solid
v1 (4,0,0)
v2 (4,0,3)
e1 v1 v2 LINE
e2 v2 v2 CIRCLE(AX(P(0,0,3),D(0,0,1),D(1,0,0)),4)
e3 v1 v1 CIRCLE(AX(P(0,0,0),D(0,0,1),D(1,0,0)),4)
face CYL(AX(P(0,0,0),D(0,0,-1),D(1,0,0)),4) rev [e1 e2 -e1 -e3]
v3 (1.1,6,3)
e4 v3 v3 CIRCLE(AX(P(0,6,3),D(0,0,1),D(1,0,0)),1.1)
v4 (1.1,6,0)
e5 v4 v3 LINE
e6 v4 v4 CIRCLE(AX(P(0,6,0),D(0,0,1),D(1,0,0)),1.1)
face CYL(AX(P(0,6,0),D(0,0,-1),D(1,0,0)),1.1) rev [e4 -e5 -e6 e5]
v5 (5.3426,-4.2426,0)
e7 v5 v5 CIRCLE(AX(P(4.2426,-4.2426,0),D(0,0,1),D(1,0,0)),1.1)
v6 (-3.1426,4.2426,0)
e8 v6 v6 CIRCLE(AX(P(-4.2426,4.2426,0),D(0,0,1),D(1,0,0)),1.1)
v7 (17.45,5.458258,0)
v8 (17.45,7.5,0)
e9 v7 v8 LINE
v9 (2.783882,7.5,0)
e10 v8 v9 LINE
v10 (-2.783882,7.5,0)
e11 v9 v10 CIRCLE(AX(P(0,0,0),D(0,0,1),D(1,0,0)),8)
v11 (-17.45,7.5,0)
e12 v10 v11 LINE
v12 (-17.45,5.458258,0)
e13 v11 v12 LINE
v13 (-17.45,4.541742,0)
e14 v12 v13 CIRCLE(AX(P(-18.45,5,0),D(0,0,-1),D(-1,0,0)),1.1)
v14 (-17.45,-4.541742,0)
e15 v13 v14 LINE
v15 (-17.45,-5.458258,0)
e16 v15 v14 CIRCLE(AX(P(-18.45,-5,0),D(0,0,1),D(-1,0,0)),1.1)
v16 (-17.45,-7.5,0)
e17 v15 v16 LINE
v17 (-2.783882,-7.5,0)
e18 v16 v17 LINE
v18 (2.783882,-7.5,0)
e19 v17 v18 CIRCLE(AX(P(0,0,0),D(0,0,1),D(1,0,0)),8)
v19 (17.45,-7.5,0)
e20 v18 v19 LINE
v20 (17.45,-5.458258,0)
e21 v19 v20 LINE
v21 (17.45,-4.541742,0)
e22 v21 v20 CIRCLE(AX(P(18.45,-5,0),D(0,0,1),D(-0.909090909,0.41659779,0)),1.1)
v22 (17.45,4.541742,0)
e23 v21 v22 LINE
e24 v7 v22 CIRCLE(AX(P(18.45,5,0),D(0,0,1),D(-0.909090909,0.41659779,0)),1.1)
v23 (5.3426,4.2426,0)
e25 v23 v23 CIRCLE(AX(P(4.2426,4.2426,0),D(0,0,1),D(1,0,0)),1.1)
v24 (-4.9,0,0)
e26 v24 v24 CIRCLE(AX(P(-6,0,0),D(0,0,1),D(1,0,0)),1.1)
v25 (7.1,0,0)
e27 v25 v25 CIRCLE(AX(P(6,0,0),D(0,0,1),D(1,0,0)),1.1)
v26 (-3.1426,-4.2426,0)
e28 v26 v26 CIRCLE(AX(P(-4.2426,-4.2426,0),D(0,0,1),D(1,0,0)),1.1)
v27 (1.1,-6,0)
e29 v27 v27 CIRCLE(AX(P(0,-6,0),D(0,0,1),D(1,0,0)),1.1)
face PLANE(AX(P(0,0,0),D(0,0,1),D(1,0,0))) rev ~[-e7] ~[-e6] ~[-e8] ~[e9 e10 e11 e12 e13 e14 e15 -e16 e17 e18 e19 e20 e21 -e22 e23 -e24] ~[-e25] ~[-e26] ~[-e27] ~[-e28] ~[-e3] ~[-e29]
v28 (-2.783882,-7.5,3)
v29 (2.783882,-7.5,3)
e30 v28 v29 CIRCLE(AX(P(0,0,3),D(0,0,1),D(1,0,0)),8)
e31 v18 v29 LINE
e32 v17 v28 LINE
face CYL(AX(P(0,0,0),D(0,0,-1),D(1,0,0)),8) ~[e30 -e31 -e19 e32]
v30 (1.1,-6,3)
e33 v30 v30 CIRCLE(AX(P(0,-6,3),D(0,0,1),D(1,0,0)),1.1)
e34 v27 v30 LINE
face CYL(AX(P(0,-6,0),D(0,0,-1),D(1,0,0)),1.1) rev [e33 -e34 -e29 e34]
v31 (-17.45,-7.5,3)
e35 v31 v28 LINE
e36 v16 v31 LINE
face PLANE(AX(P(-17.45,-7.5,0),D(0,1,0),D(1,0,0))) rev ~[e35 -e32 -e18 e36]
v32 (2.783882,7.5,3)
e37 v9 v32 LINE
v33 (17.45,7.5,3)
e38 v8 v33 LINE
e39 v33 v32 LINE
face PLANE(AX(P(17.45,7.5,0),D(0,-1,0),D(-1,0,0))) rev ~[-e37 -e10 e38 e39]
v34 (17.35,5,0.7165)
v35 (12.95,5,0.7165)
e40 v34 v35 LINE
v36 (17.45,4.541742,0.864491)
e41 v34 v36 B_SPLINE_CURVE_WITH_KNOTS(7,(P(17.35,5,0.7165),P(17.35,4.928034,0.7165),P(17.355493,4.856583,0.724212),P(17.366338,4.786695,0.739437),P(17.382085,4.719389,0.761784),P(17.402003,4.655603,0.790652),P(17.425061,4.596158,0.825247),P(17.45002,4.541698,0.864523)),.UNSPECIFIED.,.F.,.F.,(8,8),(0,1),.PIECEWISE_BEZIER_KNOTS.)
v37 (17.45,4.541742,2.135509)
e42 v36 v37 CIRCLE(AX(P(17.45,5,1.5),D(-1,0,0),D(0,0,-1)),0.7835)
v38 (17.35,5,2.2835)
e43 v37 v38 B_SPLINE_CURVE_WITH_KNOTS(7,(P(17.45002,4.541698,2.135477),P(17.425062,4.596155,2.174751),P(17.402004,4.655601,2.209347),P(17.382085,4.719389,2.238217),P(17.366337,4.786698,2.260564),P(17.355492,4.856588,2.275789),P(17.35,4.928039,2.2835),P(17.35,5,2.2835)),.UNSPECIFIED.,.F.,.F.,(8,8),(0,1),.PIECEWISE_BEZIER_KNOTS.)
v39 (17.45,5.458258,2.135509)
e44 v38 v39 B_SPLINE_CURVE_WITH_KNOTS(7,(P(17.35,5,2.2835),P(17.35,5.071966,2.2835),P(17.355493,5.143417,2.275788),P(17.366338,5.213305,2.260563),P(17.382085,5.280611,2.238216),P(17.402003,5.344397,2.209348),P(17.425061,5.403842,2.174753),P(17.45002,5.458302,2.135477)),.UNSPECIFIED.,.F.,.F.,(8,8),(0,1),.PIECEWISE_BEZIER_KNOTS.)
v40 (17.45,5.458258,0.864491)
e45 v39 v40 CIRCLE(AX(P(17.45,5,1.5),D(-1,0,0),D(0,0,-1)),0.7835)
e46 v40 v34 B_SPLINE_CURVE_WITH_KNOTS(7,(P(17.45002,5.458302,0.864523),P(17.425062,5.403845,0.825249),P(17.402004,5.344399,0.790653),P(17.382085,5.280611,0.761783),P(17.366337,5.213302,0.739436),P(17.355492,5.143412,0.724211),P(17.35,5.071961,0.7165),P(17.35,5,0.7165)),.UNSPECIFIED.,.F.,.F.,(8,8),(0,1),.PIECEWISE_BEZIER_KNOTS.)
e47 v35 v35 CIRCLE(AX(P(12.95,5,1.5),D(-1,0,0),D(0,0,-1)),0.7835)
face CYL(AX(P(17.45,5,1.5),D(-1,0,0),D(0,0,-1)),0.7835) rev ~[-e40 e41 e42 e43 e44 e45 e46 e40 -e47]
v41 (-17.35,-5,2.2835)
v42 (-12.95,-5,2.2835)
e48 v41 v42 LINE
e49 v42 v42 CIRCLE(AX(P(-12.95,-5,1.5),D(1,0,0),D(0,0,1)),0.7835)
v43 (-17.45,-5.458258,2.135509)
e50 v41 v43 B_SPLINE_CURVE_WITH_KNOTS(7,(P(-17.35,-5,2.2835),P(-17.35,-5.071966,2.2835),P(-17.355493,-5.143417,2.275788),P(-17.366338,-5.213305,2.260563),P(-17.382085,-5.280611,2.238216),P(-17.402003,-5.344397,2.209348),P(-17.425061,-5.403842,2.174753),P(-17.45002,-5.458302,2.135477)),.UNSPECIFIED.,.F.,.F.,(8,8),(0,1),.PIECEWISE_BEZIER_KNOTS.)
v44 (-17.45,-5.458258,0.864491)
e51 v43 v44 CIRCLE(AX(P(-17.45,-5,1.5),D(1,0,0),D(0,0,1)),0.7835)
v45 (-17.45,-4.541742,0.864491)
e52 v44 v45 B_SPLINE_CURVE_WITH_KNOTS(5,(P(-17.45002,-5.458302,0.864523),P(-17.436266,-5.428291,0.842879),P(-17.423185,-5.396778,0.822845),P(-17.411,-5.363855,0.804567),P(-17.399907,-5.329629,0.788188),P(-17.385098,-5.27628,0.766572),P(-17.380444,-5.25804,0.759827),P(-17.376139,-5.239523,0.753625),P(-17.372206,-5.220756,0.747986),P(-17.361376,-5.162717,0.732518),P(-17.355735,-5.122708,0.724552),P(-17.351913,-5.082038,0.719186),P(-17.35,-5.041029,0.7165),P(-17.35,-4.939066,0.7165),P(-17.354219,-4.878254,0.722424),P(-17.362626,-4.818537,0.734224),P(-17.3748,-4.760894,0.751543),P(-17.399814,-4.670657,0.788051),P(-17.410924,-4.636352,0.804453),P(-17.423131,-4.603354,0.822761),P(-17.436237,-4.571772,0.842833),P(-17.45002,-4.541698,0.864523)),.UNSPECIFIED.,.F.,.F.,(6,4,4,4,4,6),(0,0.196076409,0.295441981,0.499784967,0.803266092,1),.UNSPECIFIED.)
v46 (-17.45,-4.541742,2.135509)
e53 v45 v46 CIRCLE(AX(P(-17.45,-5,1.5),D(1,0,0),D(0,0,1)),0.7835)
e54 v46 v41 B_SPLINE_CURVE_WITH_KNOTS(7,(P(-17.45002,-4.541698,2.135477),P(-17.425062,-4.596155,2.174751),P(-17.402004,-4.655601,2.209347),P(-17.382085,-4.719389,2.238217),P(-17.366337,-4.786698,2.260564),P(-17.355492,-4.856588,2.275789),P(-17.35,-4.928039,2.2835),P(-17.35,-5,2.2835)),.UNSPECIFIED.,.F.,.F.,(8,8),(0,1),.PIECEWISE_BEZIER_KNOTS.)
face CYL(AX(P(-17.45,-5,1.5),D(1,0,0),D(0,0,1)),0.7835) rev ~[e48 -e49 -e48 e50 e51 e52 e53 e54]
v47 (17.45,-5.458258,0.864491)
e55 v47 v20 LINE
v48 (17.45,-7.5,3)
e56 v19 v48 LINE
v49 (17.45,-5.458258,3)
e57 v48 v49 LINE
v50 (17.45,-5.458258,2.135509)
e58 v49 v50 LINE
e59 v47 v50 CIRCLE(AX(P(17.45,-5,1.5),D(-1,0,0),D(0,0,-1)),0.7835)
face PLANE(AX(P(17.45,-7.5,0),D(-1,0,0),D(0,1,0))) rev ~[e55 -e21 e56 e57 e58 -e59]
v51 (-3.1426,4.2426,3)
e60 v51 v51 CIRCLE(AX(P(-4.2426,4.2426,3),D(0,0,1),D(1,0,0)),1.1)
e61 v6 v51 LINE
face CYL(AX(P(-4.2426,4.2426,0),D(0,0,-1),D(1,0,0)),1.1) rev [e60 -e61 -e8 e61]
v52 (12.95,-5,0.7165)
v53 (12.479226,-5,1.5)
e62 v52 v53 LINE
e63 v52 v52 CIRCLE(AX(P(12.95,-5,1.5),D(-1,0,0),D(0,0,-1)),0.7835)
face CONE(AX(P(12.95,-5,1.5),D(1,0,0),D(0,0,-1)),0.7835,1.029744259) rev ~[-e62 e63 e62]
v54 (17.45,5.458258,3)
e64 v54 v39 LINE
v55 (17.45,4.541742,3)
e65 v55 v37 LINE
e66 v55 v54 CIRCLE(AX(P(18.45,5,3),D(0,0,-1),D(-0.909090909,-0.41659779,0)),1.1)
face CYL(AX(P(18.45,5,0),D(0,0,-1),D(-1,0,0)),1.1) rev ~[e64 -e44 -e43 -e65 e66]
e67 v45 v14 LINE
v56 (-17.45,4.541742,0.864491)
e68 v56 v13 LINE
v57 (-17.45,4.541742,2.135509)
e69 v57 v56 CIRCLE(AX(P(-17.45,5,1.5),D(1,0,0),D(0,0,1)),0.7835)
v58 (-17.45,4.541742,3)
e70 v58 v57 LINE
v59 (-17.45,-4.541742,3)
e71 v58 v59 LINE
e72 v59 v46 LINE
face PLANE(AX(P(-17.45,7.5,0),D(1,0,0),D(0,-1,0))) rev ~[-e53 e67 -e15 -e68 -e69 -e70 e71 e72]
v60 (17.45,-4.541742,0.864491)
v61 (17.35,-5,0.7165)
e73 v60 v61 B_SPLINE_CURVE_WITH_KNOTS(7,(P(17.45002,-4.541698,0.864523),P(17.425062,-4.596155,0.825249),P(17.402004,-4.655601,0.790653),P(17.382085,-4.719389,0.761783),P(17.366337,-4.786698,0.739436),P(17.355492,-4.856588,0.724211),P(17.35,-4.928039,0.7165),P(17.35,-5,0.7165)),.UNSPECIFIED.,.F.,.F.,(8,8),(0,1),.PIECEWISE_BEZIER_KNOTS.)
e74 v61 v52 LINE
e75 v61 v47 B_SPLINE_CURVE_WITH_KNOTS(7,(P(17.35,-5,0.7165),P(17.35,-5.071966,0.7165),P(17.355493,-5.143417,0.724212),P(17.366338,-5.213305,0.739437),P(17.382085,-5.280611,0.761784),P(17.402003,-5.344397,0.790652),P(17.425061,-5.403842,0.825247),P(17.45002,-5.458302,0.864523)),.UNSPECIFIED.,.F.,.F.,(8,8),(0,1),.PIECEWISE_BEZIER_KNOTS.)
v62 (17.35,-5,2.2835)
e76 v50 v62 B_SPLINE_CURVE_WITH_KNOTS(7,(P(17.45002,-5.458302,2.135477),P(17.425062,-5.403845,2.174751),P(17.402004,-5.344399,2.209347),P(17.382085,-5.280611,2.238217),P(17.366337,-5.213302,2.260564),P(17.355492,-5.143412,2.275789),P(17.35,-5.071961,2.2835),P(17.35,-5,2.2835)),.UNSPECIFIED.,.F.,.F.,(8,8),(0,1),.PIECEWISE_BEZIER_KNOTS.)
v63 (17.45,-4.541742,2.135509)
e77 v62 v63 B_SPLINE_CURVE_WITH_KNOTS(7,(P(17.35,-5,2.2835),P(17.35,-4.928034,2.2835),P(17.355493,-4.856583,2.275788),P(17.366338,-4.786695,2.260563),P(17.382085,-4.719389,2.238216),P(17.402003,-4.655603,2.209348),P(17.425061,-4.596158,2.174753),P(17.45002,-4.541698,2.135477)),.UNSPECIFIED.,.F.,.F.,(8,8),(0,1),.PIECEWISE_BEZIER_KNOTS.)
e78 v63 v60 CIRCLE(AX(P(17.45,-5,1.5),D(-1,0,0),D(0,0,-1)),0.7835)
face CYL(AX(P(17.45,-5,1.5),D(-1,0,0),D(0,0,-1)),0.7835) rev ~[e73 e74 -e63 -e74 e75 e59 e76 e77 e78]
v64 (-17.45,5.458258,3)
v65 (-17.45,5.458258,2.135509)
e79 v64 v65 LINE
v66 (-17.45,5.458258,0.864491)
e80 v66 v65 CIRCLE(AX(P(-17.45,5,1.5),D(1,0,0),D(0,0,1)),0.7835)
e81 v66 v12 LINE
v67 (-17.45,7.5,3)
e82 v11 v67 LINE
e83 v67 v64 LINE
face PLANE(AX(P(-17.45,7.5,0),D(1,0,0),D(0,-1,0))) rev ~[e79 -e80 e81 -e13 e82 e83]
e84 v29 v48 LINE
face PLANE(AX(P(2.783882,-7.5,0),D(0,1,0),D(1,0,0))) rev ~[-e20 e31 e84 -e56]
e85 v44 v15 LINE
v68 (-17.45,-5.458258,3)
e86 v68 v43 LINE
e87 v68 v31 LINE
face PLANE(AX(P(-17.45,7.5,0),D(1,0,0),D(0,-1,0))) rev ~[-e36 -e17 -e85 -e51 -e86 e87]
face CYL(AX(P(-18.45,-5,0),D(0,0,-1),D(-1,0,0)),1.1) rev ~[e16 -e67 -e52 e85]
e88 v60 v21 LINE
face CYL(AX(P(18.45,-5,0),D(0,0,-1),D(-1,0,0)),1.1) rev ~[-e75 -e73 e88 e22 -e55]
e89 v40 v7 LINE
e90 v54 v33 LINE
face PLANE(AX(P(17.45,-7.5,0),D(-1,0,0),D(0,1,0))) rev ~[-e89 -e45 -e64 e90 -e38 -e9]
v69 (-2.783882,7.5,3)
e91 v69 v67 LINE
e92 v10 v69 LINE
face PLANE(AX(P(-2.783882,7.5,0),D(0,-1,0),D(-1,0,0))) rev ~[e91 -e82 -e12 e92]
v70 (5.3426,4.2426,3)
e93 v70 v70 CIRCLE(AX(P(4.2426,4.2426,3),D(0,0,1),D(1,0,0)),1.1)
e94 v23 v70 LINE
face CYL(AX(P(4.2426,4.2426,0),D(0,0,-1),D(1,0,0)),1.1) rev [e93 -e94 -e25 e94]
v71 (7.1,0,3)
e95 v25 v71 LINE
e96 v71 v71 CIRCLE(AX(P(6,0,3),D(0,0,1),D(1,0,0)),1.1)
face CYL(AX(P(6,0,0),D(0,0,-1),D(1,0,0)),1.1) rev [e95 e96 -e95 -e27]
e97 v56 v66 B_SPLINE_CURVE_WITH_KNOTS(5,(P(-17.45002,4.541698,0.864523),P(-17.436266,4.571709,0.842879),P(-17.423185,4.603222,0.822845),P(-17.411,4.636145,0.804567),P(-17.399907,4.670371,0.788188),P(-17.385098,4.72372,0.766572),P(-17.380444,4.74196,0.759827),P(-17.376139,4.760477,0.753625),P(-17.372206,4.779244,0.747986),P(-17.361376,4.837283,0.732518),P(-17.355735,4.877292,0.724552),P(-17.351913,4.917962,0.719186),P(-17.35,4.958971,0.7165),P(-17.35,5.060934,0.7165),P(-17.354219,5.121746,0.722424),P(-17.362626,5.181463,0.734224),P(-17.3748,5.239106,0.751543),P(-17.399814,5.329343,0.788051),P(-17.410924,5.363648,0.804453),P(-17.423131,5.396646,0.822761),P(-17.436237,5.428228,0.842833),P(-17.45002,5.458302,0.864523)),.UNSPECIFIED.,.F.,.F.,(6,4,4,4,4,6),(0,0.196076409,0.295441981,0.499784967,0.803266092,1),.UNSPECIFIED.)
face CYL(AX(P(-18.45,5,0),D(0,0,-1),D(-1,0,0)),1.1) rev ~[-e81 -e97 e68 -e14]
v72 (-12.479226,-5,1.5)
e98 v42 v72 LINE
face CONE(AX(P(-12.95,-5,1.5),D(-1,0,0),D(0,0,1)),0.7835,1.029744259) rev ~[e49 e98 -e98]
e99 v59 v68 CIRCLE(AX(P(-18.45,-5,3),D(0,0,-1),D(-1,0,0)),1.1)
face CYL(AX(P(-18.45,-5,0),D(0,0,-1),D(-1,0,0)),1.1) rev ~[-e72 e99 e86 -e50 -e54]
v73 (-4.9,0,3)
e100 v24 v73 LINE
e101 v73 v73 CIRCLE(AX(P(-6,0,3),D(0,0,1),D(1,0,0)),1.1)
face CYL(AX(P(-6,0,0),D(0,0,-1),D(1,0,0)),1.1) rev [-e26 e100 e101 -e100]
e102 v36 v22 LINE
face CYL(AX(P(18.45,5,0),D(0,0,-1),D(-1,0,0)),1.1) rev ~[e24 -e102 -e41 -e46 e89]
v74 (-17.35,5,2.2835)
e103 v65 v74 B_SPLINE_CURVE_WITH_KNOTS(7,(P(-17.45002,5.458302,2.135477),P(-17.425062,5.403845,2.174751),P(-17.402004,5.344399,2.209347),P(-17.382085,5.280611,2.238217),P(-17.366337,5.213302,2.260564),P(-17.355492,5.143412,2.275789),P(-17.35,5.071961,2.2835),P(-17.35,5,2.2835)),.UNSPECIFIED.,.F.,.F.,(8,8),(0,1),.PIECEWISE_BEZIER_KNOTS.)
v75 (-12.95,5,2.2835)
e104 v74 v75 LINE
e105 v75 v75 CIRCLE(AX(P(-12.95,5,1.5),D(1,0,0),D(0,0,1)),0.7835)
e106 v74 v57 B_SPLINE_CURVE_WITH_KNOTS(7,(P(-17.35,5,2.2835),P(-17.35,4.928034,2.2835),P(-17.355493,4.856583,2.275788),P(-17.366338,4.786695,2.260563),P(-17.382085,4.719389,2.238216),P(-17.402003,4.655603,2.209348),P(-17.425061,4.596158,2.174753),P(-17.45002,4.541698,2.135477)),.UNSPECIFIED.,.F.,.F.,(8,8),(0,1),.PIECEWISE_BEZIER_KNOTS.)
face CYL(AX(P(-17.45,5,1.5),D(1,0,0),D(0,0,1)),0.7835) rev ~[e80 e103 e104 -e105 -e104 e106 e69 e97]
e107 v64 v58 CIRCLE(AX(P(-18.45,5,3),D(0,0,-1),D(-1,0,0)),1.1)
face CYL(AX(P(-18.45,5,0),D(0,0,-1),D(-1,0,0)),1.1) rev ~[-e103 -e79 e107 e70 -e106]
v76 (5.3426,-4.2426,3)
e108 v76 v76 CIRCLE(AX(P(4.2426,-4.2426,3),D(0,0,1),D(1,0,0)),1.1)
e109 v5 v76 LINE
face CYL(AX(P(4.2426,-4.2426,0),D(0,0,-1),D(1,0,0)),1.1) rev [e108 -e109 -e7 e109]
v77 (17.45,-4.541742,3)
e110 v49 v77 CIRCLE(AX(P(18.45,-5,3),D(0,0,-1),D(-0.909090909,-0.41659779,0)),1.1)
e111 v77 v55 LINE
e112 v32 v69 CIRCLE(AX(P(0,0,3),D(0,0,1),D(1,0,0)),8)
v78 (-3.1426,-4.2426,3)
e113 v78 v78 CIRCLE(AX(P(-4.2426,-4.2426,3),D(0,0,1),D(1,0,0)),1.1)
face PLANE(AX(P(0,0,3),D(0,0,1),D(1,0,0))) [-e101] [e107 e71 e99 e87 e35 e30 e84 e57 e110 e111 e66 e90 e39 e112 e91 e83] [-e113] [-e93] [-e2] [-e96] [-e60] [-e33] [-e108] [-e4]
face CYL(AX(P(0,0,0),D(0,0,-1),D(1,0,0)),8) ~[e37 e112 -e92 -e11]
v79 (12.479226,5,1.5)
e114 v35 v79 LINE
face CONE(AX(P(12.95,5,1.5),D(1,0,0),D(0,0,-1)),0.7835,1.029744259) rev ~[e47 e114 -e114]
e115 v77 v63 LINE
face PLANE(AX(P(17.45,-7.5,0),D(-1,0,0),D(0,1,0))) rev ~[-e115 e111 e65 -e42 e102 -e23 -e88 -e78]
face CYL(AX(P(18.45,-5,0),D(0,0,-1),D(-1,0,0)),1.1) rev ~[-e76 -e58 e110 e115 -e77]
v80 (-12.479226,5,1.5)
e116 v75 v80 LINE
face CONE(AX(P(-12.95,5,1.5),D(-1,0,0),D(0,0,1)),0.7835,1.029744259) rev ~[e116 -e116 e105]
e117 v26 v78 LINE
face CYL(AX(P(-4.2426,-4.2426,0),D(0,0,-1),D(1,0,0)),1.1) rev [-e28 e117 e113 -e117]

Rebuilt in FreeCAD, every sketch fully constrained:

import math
import FreeCAD as App
import Part
import Sketcher
from FreeCAD import Vector

doc = App.newDocument("Part")
body = doc.addObject("PartDesign::Body", "Body")

sketch1 = body.newObject("Sketcher::SketchObject", "Sketch")
sketch1.AttachmentSupport = (doc.getObject("XY_Plane"), [""])
sketch1.MapMode = "FlatFace"
sketch1.addGeometry([
    Part.LineSegment(Vector(2.8, -7.5, 0), Vector(17.4, -7.5, 0)),
    Part.LineSegment(Vector(17.4, -7.5, 0), Vector(17.4, 7.5, 0)),
    Part.LineSegment(Vector(17.4, 7.5, 0), Vector(2.8, 7.5, 0)),
    Part.ArcOfCircle(Part.Circle(Vector(0, 0, 0), Vector(0, 0, 1), 8), math.radians(70), math.radians(110)),
    Part.LineSegment(Vector(-2.8, 7.5, 0), Vector(-17.4, 7.5, 0)),
    Part.LineSegment(Vector(-17.4, 7.5, 0), Vector(-17.4, -7.5, 0)),
    Part.LineSegment(Vector(-17.4, -7.5, 0), Vector(-2.8, -7.5, 0)),
    Part.ArcOfCircle(Part.Circle(Vector(0, 0, 0), Vector(0, 0, 1), 8), math.radians(-110), math.radians(-70)),
    Part.Circle(Vector(-4.2, -4.2, 0), Vector(0, 0, 1), 1.1),
    Part.Circle(Vector(0, -6, 0), Vector(0, 0, 1), 1.1),
    Part.Circle(Vector(4.2, -4.2, 0), Vector(0, 0, 1), 1.1),
    Part.Circle(Vector(-6, 0, 0), Vector(0, 0, 1), 1.1),
    Part.Circle(Vector(-4.2, 4.2, 0), Vector(0, 0, 1), 1.1),
    Part.Circle(Vector(0, 0, 0), Vector(0, 0, 1), 4),
    Part.Circle(Vector(6, 0, 0), Vector(0, 0, 1), 1.1),
    Part.Circle(Vector(4.2, 4.2, 0), Vector(0, 0, 1), 1.1),
    Part.Circle(Vector(0, 6, 0), Vector(0, 0, 1), 1.1),
], False)
sketch1.addConstraint([
    Sketcher.Constraint("Coincident", 0, 2, 1, 1),
    Sketcher.Constraint("Coincident", 1, 2, 2, 1),
    Sketcher.Constraint("Coincident", 2, 2, 3, 1),
    Sketcher.Constraint("Coincident", 3, 2, 4, 1),
    Sketcher.Constraint("Coincident", 4, 2, 5, 1),
    Sketcher.Constraint("Coincident", 5, 2, 6, 1),
    Sketcher.Constraint("Coincident", 6, 2, 7, 1),
    Sketcher.Constraint("Coincident", 7, 2, 0, 1),
    Sketcher.Constraint("Horizontal", 0),
    Sketcher.Constraint("Vertical", 1),
    Sketcher.Constraint("Horizontal", 2),
    Sketcher.Constraint("Horizontal", 4),
    Sketcher.Constraint("Vertical", 5),
    Sketcher.Constraint("Horizontal", 6),
    Sketcher.Constraint("Coincident", 3, 3, -1, 1),
    Sketcher.Constraint("Coincident", 7, 3, -1, 1),
    Sketcher.Constraint("Coincident", 13, 3, -1, 1),
    Sketcher.Constraint("Equal", 3, 7),
    Sketcher.Constraint("Equal", 8, 9),
    Sketcher.Constraint("Equal", 9, 10),
    Sketcher.Constraint("Equal", 10, 11),
    Sketcher.Constraint("Equal", 11, 12),
    Sketcher.Constraint("Equal", 12, 14),
    Sketcher.Constraint("Equal", 14, 15),
    Sketcher.Constraint("Equal", 15, 16),
    Sketcher.Constraint("Symmetric", 10, 3, 12, 3, -1, 1),
    Sketcher.Constraint("Symmetric", 11, 3, 14, 3, -1, 1),
    Sketcher.Constraint("Symmetric", 8, 3, 15, 3, -1, 1),
    Sketcher.Constraint("Symmetric", 9, 3, 16, 3, -1, 1),
    Sketcher.Constraint("Symmetric", 0, 2, 4, 2, -1, 1),
    Sketcher.Constraint("Symmetric", 8, 3, 10, 3, -2),
    Sketcher.Constraint("PointOnObject", 9, 3, -2),
    Sketcher.Constraint("PointOnObject", 11, 3, -1),
    Sketcher.Constraint("Horizontal", 2, 2, 3, 2),
    Sketcher.Constraint("Horizontal", 0, 2, 5, 2),
    Sketcher.Constraint("Diameter", 13, 8.0),
    Sketcher.Constraint("Radius", 3, 8.0),
    Sketcher.Constraint("Diameter", 8, 2.2),
    Sketcher.Constraint("DistanceY", 1, 1, 1, 2, 15.0),
    Sketcher.Constraint("DistanceY", 9, 3, -1, 1, 6.0),
    Sketcher.Constraint("DistanceX", 11, 3, -1, 1, 6.0),
    Sketcher.Constraint("DistanceX", 0, 1, 0, 2, 14.666),
    Sketcher.Constraint("DistanceX", 8, 3, -1, 1, 4.2426),
    Sketcher.Constraint("DistanceY", 8, 3, -1, 1, 4.2426),
])
pad1 = body.newObject("PartDesign::Pad", "Pad")
pad1.Profile = sketch1
pad1.Length = 3

sketch2 = body.newObject("Sketcher::SketchObject", "Sketch001")
sketch2.AttachmentSupport = (doc.getObject("YZ_Plane"), [""])
sketch2.MapMode = "FlatFace"
sketch2.AttachmentOffset = App.Placement(Vector(0, 0, 17.45), App.Rotation())
sketch2.addGeometry([
    Part.Circle(Vector(5, 1.5, 0), Vector(0, 0, 1), 0.8),
    Part.Circle(Vector(-5, 1.5, 0), Vector(0, 0, 1), 0.8),
], False)
sketch2.addConstraint([
    Sketcher.Constraint("Equal", 0, 1),
    Sketcher.Constraint("Symmetric", 0, 3, 1, 3, -2),
    Sketcher.Constraint("Diameter", 0, 1.567),
    Sketcher.Constraint("DistanceX", -1, 1, 0, 3, 5.0),
    Sketcher.Constraint("DistanceY", -1, 1, 0, 3, 1.5),
])
doc.recompute()
hole = body.newObject("PartDesign::Hole", "Hole")
hole.Profile = sketch2
hole.ThreadType = "None"
hole.Diameter = 1.567
hole.DepthType = "Dimension"
hole.Depth = 4.5
hole.DrillPoint = "Angled"
hole.DrillPointAngle = 118

sketch3 = body.newObject("Sketcher::SketchObject", "Sketch002")
sketch3.AttachmentSupport = (doc.getObject("YZ_Plane"), [""])
sketch3.MapMode = "FlatFace"
sketch3.AttachmentOffset = App.Placement(Vector(0, 0, -17.45), App.Rotation())
sketch3.addGeometry([
    Part.Circle(Vector(-5, 1.5, 0), Vector(0, 0, 1), 0.8),
    Part.Circle(Vector(5, 1.5, 0), Vector(0, 0, 1), 0.8),
], False)
sketch3.addConstraint([
    Sketcher.Constraint("Equal", 0, 1),
    Sketcher.Constraint("Symmetric", 0, 3, 1, 3, -2),
    Sketcher.Constraint("Diameter", 0, 1.567),
    Sketcher.Constraint("DistanceX", 0, 3, -1, 1, 5.0),
    Sketcher.Constraint("DistanceY", -1, 1, 0, 3, 1.5),
])
doc.recompute()
hole2 = body.newObject("PartDesign::Hole", "Hole001")
hole2.Profile = sketch3
hole2.ThreadType = "None"
hole2.Diameter = 1.567
hole2.DepthType = "Dimension"
hole2.Depth = 4.5
hole2.DrillPoint = "Angled"
hole2.DrillPointAngle = 118
hole2.Reversed = True

sketch4 = body.newObject("Sketcher::SketchObject", "Sketch003")
sketch4.AttachmentSupport = (doc.getObject("XY_Plane"), [""])
sketch4.MapMode = "FlatFace"
sketch4.addGeometry([
    Part.Circle(Vector(-18.4, -5, 0), Vector(0, 0, 1), 1.1),
    Part.Circle(Vector(-18.4, 5, 0), Vector(0, 0, 1), 1.1),
    Part.Circle(Vector(18.4, -5, 0), Vector(0, 0, 1), 1.1),
    Part.Circle(Vector(18.4, 5, 0), Vector(0, 0, 1), 1.1),
], False)
sketch4.addConstraint([
    Sketcher.Constraint("Equal", 0, 1),
    Sketcher.Constraint("Equal", 1, 2),
    Sketcher.Constraint("Equal", 2, 3),
    Sketcher.Constraint("Symmetric", 1, 3, 2, 3, -1, 1),
    Sketcher.Constraint("Symmetric", 0, 3, 3, 3, -1, 1),
    Sketcher.Constraint("Symmetric", 0, 3, 2, 3, -2),
    Sketcher.Constraint("Diameter", 0, 2.2),
    Sketcher.Constraint("DistanceY", 0, 3, -1, 1, 5.0),
    Sketcher.Constraint("DistanceX", 0, 3, 2, 3, 36.9),
])
pocket1 = body.newObject("PartDesign::Pocket", "Pocket")
pocket1.Profile = sketch4
pocket1.Length = 3
pocket1.Reversed = True

doc.recompute()
